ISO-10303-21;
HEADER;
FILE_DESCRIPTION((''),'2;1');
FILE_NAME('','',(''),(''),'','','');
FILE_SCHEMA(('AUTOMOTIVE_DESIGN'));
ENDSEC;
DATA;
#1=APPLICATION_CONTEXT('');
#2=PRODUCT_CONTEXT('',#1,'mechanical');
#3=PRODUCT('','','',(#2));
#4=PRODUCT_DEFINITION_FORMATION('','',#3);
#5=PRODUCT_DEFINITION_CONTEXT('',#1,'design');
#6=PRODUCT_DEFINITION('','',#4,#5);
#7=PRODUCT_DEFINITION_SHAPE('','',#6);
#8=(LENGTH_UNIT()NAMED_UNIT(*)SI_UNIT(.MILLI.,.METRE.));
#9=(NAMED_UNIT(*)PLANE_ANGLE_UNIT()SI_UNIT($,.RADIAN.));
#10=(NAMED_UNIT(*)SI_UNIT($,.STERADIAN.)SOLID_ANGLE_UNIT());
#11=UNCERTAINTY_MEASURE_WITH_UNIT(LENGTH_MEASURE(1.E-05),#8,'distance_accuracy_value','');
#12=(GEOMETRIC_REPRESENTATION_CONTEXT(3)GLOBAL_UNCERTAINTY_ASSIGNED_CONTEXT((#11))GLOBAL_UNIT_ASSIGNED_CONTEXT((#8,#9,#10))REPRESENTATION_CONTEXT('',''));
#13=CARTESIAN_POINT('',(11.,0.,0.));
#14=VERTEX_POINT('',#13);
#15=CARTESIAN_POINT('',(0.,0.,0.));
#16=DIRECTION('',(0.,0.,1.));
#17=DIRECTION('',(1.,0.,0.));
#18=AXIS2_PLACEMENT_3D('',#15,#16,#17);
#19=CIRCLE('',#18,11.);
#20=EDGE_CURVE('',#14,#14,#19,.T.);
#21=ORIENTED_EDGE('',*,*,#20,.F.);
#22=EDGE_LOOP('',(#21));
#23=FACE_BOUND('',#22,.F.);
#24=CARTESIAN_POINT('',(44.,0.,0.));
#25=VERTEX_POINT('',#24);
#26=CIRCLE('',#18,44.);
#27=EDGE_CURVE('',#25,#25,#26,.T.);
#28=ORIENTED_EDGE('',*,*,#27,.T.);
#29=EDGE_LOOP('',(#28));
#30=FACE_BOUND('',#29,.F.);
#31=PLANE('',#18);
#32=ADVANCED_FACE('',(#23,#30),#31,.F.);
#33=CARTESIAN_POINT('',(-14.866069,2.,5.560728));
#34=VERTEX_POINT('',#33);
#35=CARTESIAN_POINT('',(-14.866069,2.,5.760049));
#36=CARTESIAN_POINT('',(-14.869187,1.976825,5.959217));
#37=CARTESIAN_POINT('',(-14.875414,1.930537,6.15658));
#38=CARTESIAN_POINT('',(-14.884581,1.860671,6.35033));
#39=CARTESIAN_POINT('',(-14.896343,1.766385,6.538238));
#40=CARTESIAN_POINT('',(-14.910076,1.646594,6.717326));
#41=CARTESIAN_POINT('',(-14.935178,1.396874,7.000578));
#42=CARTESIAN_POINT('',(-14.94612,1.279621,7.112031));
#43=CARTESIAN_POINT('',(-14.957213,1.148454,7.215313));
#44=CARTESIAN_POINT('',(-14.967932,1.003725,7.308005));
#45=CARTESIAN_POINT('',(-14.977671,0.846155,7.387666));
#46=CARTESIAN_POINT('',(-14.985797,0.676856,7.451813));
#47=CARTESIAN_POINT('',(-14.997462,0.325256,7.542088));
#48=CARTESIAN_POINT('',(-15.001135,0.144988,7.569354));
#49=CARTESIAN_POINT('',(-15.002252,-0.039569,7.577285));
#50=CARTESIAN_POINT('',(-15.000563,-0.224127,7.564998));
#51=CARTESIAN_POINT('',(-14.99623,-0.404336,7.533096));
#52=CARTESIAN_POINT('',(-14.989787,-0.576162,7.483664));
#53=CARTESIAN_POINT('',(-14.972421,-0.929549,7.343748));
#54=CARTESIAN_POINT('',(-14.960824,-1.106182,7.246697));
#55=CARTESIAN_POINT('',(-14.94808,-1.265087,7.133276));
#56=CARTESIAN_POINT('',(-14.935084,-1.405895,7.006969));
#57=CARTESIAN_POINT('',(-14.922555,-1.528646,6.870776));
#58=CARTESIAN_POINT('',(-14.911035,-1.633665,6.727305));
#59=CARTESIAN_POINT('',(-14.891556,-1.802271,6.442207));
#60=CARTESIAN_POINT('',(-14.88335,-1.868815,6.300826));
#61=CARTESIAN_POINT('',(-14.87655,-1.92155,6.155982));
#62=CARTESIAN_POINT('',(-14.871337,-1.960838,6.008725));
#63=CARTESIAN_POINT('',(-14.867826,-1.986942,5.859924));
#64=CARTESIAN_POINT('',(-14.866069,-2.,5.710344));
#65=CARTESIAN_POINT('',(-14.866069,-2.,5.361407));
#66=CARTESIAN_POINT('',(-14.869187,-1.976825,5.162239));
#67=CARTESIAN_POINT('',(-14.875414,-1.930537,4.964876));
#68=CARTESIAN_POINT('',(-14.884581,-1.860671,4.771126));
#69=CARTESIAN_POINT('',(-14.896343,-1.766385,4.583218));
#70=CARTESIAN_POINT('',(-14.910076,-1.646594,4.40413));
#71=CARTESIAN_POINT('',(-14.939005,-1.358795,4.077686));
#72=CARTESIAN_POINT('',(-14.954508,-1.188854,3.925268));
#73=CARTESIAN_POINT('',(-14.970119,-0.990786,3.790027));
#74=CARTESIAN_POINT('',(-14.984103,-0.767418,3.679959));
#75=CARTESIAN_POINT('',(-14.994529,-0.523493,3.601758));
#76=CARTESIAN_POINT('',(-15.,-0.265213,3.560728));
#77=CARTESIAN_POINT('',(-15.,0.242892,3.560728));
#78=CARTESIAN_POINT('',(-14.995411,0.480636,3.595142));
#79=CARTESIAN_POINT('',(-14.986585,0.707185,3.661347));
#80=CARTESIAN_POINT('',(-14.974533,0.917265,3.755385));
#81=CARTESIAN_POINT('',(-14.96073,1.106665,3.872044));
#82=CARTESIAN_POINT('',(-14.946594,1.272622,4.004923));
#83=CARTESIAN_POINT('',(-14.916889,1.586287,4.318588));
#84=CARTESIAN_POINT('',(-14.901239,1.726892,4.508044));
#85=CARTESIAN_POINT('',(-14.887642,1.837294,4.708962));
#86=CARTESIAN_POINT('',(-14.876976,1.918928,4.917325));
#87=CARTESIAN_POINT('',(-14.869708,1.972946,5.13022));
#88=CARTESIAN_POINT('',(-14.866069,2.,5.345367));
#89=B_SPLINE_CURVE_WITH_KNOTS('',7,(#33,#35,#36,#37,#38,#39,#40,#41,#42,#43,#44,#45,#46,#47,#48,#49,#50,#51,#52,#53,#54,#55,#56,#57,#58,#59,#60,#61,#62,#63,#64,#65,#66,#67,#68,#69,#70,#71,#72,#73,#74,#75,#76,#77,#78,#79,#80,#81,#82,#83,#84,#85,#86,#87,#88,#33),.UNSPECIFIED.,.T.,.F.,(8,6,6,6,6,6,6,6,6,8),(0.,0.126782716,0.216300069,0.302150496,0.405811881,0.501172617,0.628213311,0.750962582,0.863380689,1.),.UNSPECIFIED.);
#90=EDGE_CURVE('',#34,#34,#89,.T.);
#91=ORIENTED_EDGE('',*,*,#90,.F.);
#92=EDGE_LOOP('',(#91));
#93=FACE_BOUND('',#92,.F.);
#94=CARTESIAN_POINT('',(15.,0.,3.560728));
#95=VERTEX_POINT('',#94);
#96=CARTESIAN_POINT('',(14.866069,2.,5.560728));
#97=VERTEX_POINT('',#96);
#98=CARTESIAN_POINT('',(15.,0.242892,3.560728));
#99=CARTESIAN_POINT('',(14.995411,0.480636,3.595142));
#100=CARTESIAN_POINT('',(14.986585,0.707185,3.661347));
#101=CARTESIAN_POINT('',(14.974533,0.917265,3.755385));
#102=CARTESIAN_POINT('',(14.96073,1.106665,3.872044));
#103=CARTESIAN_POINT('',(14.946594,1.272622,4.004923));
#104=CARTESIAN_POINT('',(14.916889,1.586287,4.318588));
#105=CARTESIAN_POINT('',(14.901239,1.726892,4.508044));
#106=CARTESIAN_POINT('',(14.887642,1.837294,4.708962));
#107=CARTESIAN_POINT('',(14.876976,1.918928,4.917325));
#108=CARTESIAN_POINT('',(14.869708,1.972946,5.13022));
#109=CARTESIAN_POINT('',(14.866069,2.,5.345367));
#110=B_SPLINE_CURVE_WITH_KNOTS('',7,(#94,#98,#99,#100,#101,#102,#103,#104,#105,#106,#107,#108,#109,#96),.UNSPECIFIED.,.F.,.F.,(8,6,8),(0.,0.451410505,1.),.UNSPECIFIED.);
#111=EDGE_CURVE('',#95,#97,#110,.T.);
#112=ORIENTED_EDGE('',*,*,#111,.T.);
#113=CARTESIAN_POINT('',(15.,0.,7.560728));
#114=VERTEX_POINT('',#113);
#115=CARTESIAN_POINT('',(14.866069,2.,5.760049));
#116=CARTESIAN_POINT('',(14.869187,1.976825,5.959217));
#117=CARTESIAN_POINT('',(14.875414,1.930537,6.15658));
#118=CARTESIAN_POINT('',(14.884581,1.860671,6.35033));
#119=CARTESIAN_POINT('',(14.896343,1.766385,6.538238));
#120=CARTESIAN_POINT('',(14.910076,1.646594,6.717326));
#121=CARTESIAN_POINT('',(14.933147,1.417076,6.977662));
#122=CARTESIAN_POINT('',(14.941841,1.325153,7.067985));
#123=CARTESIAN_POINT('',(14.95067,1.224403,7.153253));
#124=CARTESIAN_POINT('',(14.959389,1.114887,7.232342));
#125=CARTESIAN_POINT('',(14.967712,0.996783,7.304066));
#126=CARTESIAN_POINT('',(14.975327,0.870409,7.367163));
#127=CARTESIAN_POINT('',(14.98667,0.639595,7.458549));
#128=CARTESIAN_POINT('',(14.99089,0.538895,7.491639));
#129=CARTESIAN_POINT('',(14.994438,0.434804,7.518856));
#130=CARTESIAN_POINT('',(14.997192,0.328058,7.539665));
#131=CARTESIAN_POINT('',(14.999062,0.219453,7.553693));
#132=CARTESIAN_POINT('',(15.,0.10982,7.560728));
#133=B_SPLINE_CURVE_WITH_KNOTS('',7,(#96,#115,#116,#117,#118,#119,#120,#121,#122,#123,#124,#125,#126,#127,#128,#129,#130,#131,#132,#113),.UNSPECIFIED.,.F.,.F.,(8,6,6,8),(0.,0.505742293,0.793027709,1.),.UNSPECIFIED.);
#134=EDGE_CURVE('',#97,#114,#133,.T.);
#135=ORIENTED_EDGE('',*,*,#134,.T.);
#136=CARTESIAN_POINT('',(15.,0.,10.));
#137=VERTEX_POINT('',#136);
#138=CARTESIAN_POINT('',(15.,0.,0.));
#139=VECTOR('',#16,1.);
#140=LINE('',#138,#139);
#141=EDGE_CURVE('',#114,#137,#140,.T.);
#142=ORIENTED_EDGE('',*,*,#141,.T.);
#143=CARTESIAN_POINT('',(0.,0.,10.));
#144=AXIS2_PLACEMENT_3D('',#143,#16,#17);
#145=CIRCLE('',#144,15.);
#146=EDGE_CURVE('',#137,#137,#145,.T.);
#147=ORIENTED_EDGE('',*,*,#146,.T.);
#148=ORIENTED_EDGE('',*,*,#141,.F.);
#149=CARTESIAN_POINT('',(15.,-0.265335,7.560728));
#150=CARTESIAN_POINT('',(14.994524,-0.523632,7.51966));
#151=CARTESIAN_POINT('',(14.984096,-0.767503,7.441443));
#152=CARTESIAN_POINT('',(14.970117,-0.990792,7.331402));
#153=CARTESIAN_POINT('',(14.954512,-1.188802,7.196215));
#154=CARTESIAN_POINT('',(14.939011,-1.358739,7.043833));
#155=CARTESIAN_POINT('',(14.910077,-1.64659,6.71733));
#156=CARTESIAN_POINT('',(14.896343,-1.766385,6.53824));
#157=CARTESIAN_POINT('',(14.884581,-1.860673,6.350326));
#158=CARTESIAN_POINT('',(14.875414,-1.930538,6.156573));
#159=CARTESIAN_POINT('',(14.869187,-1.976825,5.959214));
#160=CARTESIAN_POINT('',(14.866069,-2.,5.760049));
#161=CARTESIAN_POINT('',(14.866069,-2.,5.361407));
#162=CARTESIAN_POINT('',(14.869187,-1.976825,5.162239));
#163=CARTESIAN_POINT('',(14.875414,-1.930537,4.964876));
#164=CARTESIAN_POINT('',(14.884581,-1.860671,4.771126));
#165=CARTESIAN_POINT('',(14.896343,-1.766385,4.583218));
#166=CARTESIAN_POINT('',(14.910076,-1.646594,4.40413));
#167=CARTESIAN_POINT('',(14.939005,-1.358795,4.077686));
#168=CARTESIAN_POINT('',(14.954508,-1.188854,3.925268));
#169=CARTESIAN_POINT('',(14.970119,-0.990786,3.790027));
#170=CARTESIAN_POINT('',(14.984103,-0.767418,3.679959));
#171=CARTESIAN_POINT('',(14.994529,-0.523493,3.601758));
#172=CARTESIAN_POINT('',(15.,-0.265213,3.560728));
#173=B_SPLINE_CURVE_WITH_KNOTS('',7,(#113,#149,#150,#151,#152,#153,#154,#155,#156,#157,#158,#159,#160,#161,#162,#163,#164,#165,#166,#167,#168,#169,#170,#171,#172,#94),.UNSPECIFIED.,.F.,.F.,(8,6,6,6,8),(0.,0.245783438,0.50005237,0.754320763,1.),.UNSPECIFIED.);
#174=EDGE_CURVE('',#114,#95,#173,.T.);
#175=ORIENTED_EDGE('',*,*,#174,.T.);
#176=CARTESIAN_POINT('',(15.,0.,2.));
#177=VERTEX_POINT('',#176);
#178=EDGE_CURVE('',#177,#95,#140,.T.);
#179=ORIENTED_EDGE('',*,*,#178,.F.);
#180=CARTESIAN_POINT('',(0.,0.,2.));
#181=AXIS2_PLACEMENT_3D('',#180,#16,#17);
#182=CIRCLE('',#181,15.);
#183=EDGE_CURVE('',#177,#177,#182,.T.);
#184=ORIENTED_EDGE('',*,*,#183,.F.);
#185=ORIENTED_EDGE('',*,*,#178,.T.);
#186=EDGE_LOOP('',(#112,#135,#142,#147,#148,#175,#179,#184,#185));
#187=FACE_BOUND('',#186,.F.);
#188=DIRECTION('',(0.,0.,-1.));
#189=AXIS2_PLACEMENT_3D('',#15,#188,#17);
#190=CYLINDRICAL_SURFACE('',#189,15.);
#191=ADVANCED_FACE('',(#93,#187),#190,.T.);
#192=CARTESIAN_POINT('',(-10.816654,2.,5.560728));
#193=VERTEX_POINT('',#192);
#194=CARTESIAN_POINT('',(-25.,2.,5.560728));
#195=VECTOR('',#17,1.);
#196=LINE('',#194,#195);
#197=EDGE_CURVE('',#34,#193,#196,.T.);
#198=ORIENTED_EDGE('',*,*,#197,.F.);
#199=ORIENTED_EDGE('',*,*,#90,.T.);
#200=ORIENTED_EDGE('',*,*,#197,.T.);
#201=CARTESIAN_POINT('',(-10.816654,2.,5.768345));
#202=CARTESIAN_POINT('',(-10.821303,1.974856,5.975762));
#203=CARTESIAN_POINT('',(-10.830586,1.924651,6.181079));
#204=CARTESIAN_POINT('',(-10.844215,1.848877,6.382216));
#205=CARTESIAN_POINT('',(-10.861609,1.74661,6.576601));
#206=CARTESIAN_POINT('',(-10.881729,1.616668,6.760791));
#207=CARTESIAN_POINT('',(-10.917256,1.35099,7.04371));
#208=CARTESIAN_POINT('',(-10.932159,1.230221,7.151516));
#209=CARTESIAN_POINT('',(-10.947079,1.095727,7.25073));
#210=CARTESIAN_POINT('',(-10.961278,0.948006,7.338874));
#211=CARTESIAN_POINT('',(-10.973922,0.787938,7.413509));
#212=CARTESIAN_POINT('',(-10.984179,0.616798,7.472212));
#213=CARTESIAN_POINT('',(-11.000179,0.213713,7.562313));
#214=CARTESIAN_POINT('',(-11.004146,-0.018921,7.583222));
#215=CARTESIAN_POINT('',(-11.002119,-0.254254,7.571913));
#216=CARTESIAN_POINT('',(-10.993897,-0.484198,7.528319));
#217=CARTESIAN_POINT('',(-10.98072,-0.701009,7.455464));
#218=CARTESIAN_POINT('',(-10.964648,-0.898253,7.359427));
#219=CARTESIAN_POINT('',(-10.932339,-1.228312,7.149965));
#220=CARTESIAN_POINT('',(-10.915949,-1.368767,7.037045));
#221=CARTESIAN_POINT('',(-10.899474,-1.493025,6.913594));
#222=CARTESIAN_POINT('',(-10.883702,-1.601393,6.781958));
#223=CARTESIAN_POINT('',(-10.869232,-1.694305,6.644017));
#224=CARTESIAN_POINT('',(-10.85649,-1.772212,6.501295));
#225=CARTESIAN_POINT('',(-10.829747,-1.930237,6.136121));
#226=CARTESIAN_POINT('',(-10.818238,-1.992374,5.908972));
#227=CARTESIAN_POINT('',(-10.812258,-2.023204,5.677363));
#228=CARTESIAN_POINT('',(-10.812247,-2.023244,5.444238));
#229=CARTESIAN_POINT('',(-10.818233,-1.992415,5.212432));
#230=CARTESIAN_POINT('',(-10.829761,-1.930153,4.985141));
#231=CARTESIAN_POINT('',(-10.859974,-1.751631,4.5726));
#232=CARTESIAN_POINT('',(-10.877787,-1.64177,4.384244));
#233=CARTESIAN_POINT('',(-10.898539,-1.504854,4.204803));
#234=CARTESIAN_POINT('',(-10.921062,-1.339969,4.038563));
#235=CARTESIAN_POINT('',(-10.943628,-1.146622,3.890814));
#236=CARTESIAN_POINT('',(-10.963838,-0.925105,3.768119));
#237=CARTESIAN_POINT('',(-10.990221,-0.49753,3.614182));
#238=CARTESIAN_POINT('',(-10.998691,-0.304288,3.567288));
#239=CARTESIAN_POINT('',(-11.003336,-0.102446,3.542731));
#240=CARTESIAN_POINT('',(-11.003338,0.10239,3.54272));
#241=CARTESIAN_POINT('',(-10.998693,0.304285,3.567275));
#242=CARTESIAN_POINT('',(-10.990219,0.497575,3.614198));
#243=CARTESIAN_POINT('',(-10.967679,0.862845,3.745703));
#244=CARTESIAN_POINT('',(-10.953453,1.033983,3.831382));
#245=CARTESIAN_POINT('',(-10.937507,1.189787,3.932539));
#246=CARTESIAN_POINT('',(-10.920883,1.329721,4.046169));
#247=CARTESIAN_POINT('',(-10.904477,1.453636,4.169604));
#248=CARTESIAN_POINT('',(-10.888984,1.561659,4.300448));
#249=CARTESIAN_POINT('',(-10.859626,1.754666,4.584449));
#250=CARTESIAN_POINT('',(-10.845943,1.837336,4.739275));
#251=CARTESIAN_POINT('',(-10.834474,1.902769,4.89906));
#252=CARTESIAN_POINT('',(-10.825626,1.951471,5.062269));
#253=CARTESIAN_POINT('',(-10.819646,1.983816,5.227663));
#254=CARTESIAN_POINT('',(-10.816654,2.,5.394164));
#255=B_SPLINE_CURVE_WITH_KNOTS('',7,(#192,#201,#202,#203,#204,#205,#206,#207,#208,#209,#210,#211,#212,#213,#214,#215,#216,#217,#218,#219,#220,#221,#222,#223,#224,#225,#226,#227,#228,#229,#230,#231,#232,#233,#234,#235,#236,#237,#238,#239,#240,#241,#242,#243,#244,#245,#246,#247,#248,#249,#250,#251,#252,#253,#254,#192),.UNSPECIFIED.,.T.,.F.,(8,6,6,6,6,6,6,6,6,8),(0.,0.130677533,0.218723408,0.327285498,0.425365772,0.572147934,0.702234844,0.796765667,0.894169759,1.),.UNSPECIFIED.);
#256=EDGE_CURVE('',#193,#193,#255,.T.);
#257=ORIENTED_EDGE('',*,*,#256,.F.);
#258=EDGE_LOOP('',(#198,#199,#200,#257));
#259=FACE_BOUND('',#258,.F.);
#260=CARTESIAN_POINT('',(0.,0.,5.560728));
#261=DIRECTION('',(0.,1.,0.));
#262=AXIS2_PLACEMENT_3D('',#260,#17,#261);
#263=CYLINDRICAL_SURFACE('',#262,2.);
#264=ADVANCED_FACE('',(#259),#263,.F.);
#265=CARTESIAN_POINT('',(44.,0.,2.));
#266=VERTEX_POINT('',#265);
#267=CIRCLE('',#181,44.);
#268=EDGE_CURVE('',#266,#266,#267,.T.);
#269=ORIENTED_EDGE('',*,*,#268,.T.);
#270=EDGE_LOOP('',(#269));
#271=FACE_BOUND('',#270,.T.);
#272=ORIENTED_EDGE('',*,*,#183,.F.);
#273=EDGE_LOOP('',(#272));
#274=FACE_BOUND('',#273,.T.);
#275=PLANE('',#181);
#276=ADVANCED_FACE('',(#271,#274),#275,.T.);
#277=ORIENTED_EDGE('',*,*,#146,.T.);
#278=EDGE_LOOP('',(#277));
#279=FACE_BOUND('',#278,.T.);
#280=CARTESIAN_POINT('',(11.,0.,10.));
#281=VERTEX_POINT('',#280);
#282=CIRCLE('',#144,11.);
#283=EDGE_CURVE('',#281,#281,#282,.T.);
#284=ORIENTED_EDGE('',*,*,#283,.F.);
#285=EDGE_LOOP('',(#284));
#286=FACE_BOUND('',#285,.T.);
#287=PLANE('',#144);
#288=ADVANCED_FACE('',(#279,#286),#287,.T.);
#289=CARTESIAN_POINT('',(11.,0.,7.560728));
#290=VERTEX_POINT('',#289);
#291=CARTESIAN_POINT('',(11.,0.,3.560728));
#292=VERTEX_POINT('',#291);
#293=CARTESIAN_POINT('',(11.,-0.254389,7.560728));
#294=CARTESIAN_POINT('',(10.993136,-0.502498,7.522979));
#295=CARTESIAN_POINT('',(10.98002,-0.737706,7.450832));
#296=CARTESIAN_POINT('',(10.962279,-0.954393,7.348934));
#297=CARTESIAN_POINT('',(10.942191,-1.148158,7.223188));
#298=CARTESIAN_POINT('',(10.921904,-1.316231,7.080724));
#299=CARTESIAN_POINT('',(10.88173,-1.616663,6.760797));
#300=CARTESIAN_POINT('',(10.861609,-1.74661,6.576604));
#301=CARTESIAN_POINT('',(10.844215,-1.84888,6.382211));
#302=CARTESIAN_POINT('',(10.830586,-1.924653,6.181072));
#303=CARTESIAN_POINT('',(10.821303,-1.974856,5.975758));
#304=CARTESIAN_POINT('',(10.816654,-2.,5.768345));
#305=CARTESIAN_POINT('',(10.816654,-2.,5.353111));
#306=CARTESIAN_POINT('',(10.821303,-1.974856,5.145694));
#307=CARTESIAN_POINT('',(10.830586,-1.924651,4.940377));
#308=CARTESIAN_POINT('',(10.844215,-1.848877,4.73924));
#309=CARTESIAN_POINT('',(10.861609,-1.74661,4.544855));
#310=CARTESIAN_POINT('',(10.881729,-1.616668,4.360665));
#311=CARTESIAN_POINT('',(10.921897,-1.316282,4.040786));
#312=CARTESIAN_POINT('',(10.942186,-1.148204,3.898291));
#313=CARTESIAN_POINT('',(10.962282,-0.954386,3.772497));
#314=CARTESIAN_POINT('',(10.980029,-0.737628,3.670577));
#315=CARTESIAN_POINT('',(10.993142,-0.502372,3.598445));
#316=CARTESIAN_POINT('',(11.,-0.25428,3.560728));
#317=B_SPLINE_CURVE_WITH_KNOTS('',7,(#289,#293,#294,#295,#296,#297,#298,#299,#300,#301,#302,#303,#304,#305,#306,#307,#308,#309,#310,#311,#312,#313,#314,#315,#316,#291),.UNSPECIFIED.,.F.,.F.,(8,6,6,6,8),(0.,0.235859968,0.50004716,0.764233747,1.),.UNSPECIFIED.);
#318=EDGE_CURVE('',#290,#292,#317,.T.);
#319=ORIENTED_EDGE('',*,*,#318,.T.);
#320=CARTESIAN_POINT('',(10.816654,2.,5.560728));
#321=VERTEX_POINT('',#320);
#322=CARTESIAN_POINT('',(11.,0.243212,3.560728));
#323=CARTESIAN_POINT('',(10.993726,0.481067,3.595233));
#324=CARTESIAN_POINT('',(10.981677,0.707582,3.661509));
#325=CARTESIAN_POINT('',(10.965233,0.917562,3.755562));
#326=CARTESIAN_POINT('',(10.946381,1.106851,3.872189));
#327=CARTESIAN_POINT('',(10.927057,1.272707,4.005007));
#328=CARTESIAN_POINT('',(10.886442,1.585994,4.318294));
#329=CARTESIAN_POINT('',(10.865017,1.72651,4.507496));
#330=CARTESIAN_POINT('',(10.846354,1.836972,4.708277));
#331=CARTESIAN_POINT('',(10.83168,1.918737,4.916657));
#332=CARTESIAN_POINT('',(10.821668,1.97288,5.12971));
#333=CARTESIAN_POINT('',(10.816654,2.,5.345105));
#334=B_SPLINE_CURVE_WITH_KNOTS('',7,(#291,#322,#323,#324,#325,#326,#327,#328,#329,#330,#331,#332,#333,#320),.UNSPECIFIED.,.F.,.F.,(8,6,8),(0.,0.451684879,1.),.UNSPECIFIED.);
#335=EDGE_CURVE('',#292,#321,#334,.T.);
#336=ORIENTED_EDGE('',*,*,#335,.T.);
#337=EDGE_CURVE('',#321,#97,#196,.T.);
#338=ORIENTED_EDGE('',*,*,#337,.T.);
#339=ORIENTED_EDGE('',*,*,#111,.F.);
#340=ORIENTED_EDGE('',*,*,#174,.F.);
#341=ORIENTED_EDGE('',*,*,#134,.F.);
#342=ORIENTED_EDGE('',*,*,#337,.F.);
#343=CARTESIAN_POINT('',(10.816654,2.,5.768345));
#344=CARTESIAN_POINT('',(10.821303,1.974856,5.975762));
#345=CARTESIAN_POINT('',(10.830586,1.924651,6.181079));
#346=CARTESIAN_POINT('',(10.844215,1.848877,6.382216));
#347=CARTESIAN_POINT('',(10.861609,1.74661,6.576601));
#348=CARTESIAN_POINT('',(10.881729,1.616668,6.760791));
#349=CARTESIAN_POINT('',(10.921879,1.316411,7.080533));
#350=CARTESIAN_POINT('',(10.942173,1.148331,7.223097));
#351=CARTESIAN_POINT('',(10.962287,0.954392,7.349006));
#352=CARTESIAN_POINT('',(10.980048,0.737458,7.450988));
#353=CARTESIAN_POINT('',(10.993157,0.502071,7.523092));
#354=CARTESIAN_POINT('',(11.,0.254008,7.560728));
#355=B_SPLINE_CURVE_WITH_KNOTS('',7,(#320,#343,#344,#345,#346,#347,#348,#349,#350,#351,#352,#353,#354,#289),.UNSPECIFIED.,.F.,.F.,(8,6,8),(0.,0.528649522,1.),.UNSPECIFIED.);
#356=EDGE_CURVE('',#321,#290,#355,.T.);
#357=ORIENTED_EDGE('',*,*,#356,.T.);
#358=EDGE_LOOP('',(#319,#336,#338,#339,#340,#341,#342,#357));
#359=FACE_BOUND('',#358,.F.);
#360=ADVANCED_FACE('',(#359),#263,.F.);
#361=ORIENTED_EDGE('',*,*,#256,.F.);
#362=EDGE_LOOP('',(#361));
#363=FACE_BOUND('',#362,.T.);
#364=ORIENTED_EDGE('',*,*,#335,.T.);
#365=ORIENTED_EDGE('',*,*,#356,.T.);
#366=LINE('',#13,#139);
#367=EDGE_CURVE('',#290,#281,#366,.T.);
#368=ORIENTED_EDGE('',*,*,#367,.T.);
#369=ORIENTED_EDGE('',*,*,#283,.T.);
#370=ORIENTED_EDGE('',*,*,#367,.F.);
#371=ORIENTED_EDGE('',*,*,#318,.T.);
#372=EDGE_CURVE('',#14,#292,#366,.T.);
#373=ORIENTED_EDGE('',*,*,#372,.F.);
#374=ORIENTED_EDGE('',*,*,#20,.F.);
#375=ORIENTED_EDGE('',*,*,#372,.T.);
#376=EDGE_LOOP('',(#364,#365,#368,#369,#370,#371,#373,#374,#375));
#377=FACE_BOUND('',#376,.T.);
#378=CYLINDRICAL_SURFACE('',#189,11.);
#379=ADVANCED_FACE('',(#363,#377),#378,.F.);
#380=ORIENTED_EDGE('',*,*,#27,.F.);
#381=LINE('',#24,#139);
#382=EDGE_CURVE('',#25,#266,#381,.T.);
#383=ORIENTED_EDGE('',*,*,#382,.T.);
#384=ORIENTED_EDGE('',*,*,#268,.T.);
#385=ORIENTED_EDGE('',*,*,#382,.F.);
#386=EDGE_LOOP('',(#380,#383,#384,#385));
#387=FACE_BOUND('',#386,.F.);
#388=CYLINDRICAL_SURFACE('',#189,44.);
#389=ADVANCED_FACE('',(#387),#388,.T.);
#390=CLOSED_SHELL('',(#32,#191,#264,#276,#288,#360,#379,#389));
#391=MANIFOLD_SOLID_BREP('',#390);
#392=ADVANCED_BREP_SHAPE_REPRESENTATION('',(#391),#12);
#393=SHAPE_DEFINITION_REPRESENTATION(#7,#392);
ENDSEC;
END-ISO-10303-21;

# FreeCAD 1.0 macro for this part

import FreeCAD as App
import Part
import Sketcher

V = App.Vector

doc = App.newDocument("Part")
body = doc.addObject("PartDesign::Body", "Body")

# Sketch on XY plane
sketch1 = body.newObject("Sketcher::SketchObject", "Sketch")
sketch1.AttachmentSupport = (doc.getObject("XY_Plane"), [""])
sketch1.MapMode = "FlatFace"
sketch1.addGeometry([
    Part.Circle(V(0, 0, 0), V(0, 0, 1), 15),
    Part.Circle(V(0, 0, 0), V(0, 0, 1), 11),
], False)
sketch1.addConstraint([
    Sketcher.Constraint("Coincident", 0, 3, -1, 1),
    Sketcher.Constraint("Coincident", 1, 3, -1, 1),
    Sketcher.Constraint("Diameter", 0, 30.0),
    Sketcher.Constraint("Diameter", 1, 22.0),
])
pad1 = body.newObject("PartDesign::Pad", "Pad")
pad1.Profile = sketch1
pad1.Length = 10

# Sketch on XY plane
sketch2 = body.newObject("Sketcher::SketchObject", "Sketch001")
sketch2.AttachmentSupport = (doc.getObject("XY_Plane"), [""])
sketch2.MapMode = "FlatFace"
sketch2.addGeometry([
    Part.Circle(V(0, 0, 0), V(0, 0, 1), 44),
    Part.Circle(V(0, 0, 0), V(0, 0, 1), 15),
], False)
sketch2.addConstraint([
    Sketcher.Constraint("Coincident", 0, 3, -1, 1),
    Sketcher.Constraint("Coincident", 1, 3, -1, 1),
    Sketcher.Constraint("Diameter", 0, 88.0),
    Sketcher.Constraint("Diameter", 1, 30.0),
])
pad2 = body.newObject("PartDesign::Pad", "Pad001")
pad2.Profile = sketch2
pad2.Length = 2

# Sketch on YZ plane
sketch3 = body.newObject("Sketcher::SketchObject", "Sketch002")
sketch3.AttachmentSupport = (doc.getObject("YZ_Plane"), [""])
sketch3.MapMode = "FlatFace"
sketch3.addGeometry(Part.Circle(V(0, 5.560728, 0), V(0, 0, 1), 2), False)
sketch3.addConstraint([
    Sketcher.Constraint("PointOnObject", 0, 3, -2),
    Sketcher.Constraint("Diameter", 0, 4.0),
    Sketcher.Constraint("DistanceY", -1, 1, 0, 3, 5.560728),
])
pocket1 = body.newObject("PartDesign::Pocket", "Pocket")
pocket1.Profile = sketch3
pocket1.Length = 50
pocket1.Midplane = True

doc.recompute()
